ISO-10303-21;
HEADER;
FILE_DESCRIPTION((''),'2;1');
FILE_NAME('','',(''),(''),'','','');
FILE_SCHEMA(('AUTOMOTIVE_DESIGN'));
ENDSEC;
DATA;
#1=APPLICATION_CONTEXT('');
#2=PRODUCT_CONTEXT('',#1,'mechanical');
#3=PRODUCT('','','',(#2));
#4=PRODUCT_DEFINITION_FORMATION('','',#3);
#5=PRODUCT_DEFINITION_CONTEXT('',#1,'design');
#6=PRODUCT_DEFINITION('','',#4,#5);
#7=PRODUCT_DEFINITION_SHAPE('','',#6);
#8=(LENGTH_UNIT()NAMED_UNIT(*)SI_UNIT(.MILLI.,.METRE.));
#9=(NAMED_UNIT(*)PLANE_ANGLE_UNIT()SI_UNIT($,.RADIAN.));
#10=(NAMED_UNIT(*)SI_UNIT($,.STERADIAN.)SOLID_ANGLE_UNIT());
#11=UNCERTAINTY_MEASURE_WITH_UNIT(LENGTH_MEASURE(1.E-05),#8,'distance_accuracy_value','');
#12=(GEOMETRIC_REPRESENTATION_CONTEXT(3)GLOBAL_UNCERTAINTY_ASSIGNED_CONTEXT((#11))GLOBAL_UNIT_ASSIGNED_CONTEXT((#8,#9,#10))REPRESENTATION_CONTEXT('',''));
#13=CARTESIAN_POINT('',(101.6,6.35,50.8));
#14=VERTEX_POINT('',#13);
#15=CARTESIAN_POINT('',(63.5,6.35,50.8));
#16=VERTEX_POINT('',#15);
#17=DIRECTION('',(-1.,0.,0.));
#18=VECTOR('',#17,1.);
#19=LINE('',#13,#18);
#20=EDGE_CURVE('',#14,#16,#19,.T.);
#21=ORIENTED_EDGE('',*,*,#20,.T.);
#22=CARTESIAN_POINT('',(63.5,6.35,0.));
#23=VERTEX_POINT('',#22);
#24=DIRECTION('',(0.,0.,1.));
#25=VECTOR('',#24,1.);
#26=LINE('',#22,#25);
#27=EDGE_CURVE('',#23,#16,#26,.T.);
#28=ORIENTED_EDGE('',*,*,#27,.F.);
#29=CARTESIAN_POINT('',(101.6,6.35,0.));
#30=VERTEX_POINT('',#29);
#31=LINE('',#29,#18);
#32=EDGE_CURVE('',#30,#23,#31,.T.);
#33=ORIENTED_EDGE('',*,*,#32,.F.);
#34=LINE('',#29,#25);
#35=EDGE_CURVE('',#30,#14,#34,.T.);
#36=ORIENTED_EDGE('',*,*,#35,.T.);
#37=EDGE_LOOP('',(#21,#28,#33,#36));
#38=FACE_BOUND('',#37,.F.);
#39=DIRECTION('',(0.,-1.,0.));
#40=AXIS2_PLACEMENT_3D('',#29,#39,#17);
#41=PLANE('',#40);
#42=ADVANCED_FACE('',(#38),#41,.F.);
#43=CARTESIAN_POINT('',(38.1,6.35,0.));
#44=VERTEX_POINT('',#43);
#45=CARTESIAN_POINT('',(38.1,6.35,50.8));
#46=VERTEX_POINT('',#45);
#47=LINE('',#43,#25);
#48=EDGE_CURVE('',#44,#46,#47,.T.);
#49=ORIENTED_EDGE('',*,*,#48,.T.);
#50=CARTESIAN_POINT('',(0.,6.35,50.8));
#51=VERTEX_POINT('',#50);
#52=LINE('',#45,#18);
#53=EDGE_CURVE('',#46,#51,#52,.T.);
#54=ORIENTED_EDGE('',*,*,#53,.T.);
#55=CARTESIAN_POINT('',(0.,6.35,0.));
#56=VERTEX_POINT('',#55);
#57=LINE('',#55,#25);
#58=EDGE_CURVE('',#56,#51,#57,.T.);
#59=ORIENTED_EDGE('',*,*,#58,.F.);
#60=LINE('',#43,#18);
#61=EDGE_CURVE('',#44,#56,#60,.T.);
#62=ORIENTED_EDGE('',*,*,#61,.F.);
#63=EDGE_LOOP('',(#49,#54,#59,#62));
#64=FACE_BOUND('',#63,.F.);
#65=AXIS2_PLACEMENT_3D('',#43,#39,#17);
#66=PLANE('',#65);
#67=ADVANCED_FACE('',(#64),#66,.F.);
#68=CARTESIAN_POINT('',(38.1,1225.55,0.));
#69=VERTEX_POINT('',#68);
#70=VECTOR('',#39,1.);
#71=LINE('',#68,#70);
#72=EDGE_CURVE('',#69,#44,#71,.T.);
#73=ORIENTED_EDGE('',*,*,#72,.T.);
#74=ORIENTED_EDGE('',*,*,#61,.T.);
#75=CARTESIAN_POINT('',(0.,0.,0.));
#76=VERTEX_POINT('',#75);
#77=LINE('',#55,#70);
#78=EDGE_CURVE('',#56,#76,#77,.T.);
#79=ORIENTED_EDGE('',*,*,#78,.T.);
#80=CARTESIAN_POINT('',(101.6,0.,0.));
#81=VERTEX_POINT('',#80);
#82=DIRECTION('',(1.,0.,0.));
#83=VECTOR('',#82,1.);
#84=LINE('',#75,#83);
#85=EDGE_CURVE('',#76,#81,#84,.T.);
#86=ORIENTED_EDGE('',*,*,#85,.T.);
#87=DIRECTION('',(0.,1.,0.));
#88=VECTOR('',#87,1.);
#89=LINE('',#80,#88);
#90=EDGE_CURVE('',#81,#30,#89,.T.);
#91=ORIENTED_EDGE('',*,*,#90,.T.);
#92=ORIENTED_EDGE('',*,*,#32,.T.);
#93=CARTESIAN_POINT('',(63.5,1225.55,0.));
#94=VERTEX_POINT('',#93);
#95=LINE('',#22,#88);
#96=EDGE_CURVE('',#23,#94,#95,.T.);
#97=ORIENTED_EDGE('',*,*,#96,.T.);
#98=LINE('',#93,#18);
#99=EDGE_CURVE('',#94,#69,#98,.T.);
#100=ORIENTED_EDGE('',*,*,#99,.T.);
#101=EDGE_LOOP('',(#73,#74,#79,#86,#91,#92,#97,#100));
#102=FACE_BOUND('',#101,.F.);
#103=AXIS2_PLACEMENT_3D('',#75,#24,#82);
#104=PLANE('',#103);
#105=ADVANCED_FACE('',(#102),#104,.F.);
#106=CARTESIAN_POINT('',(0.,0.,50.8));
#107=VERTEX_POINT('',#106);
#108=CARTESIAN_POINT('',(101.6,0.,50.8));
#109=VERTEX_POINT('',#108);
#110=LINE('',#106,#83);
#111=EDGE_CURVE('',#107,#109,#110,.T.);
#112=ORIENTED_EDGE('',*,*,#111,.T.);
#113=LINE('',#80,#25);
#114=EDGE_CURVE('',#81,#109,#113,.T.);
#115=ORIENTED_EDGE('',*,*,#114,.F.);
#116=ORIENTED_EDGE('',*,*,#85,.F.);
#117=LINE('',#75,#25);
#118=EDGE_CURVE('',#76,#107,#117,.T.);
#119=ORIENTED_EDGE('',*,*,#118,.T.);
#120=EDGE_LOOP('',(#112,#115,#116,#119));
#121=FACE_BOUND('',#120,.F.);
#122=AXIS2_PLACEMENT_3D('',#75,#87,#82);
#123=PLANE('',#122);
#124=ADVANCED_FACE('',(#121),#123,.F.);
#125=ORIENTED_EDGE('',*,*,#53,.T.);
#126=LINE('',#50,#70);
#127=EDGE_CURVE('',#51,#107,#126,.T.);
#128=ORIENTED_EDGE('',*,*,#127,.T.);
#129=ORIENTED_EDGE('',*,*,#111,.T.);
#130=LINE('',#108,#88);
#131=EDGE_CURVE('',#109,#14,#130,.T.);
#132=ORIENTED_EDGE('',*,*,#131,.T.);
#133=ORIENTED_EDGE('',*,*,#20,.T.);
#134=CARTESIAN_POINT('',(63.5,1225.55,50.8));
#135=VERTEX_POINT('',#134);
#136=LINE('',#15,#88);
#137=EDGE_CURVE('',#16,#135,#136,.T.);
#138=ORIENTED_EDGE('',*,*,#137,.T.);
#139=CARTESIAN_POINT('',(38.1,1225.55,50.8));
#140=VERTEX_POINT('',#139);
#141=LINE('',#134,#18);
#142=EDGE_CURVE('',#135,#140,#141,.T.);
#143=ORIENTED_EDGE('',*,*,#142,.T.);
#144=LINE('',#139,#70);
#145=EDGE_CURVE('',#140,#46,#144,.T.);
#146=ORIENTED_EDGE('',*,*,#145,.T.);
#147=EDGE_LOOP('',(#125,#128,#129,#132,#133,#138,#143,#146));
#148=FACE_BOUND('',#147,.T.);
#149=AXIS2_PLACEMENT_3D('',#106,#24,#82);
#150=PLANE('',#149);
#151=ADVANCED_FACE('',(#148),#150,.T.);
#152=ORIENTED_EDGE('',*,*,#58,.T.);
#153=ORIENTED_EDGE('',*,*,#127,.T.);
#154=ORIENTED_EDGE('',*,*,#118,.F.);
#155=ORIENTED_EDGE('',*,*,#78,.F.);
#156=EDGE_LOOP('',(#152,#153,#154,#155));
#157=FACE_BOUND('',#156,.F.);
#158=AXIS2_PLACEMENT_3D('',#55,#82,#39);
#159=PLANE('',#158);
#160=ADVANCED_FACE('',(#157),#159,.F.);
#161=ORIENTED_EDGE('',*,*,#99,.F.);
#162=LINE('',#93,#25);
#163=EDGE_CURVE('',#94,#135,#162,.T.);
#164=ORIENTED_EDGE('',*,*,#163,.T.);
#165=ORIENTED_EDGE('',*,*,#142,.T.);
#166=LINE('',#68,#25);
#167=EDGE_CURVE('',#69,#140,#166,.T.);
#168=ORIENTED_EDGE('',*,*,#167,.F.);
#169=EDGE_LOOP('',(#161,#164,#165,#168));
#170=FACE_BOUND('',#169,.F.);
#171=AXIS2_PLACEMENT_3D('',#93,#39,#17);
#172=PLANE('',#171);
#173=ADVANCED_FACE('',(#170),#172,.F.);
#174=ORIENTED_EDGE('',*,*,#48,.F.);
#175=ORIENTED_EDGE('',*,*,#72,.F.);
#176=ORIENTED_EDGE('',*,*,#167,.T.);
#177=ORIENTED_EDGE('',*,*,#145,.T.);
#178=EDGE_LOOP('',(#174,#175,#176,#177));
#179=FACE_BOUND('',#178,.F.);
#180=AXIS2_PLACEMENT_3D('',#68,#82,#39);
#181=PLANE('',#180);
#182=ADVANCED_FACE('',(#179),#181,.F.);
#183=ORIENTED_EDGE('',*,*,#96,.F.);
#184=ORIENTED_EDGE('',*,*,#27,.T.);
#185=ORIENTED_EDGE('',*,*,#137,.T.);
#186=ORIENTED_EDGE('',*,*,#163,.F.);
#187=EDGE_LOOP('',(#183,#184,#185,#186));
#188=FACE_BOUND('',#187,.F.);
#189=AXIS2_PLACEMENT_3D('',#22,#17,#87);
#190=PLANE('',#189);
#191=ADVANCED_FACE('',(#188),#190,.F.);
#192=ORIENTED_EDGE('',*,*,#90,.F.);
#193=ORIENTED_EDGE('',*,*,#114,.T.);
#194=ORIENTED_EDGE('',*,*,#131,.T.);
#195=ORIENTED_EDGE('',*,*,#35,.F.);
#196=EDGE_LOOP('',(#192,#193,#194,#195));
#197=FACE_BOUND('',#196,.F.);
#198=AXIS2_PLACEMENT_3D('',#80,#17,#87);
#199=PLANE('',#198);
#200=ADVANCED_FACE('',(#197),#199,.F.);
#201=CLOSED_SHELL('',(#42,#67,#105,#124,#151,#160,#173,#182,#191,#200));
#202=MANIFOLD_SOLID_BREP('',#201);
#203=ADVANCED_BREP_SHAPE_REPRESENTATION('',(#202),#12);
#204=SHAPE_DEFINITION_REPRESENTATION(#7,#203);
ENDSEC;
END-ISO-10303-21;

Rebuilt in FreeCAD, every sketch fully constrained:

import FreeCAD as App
import Part
import Sketcher
from FreeCAD import Vector
Q = App.Units.Quantity


def add_polygon(sketch, points):
    """Adds a closed chain of lines whose ends are joined by coincident constraints."""
    first, n = sketch.GeometryCount, len(points)
    for a, b in zip(points, points[1:] + points[:1]):
        sketch.addGeometry(Part.LineSegment(App.Vector(*a, 0), App.Vector(*b, 0)), False)
    for i in range(n):
        sketch.addConstraint(Sketcher.Constraint("Coincident", first + i, 2, first + (i + 1) % n, 1))

doc = App.newDocument("Part")
body = doc.addObject("PartDesign::Body", "Body")

sketch1 = doc.addObject("Sketcher::SketchObject", "Sketch")
body.addObject(sketch1)
sketch1.AttachmentSupport = (doc.XY_Plane, [""])
sketch1.MapMode = "FlatFace"
add_polygon(sketch1, [(0, 6), (0, 0), (102, 0), (102, 6), (64, 6), (64, 1226), (38, 1226), (38, 6)])
sketch1.addConstraint(Sketcher.Constraint("Vertical", 0))
sketch1.addConstraint(Sketcher.Constraint("Horizontal", 1))
sketch1.addConstraint(Sketcher.Constraint("Vertical", 2))
sketch1.addConstraint(Sketcher.Constraint("Horizontal", 3))
sketch1.addConstraint(Sketcher.Constraint("Vertical", 4))
sketch1.addConstraint(Sketcher.Constraint("Horizontal", 5))
sketch1.addConstraint(Sketcher.Constraint("Vertical", 6))
sketch1.addConstraint(Sketcher.Constraint("Horizontal", 7))
sketch1.addConstraint(Sketcher.Constraint("Coincident", 0, 2, -1, 1))
sketch1.addConstraint(Sketcher.Constraint("Horizontal", 3, 2, 6, 2))
sketch1.addConstraint(Sketcher.Constraint("Equal", 3, 7))
sketch1.addConstraint(Sketcher.Constraint("DistanceX", 1, 1, 1, 2, Q("4 in")))
sketch1.addConstraint(Sketcher.Constraint("DistanceX", 5, 2, 5, 1, Q("1 in")))
sketch1.addConstraint(Sketcher.Constraint("DistanceY", 4, 1, 4, 2, Q("48 in")))
sketch1.addConstraint(Sketcher.Constraint("DistanceY", 0, 2, 0, 1, Q("0.25 in")))
pad1 = doc.addObject("PartDesign::Pad", "Pad")
body.addObject(pad1)
pad1.Profile = sketch1
pad1.Length = Q("2 in")

doc.recompute()
